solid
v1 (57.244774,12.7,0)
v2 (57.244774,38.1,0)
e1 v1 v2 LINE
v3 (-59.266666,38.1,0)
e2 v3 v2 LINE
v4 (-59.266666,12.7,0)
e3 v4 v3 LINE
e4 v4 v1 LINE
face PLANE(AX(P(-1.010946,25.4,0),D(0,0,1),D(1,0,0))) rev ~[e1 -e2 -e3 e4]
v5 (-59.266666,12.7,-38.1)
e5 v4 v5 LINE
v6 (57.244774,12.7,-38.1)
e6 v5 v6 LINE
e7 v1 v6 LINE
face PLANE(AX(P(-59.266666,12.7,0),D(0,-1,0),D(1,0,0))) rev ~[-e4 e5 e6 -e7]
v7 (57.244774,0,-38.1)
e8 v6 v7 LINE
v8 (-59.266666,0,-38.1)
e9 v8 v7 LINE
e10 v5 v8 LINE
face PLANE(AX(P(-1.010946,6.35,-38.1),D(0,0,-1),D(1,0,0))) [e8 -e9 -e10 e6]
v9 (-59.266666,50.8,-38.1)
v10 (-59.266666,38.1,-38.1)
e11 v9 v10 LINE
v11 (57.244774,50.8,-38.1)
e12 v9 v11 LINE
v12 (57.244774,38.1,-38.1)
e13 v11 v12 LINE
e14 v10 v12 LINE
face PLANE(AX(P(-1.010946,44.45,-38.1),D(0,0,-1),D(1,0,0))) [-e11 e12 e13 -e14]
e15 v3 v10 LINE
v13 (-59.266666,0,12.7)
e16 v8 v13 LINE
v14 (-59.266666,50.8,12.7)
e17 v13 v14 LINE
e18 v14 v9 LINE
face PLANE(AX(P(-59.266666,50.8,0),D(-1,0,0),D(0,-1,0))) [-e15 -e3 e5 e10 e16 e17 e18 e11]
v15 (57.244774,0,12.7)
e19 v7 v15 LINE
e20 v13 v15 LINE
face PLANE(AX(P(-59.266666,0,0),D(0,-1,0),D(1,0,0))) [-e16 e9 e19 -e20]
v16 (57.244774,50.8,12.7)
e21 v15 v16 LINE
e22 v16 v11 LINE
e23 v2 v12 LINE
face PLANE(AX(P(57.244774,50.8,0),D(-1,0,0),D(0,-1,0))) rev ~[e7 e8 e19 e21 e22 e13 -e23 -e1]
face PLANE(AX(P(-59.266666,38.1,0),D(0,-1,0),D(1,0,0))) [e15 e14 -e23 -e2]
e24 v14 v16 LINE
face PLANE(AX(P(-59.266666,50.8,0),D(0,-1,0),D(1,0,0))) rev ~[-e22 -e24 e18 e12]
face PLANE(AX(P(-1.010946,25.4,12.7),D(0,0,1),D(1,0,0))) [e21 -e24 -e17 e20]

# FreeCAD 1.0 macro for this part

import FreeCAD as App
import Part
import Sketcher
Q = App.Units.Quantity


def add_polygon(sketch, points):
    """Adds a closed chain of lines whose ends are joined by coincident constraints."""
    first, n = sketch.GeometryCount, len(points)
    for a, b in zip(points, points[1:] + points[:1]):
        sketch.addGeometry(Part.LineSegment(App.Vector(*a, 0), App.Vector(*b, 0)), False)
    for i in range(n):
        sketch.addConstraint(Sketcher.Constraint("Coincident", first + i, 2, first + (i + 1) % n, 1))

doc = App.newDocument("Part")
body = doc.addObject("PartDesign::Body", "Body")

sketch1 = body.newObject("Sketcher::SketchObject", "Sketch")
sketch1.AttachmentSupport = (doc.getObject("XY_Plane"), [""])
sketch1.MapMode = "FlatFace"
add_polygon(sketch1, [(-59, 51), (-59, 0), (57, 0), (57, 51)])
sketch1.addConstraint([
    Sketcher.Constraint("Vertical", 0),
    Sketcher.Constraint("Horizontal", 1),
    Sketcher.Constraint("Vertical", 2),
    Sketcher.Constraint("Horizontal", 3),
    Sketcher.Constraint("PointOnObject", 0, 2, -1),
    Sketcher.Constraint("DistanceY", 0, 2, 0, 1, Q("2 in")),
    Sketcher.Constraint("DistanceX", 1, 1, 1, 2, Q("116.511441 mm")),
    Sketcher.Constraint("DistanceX", 0, 2, -1, 1, Q("59.266666 mm")),
])
pad1 = body.newObject("PartDesign::Pad", "Pad")
pad1.Profile = sketch1
pad1.Length = Q("0.5 in")

sketch2 = body.newObject("Sketcher::SketchObject", "Sketch001")
sketch2.AttachmentSupport = (doc.getObject("XY_Plane"), [""])
sketch2.MapMode = "FlatFace"
add_polygon(sketch2, [(-59, 0), (-59, 13), (57, 13), (57, 0)])
sketch2.addConstraint([
    Sketcher.Constraint("Vertical", 0),
    Sketcher.Constraint("Horizontal", 1),
    Sketcher.Constraint("Vertical", 2),
    Sketcher.Constraint("Horizontal", 3),
    Sketcher.Constraint("PointOnObject", 2, 2, -1),
    Sketcher.Constraint("DistanceY", 0, 1, 0, 2, Q("0.5 in")),
    Sketcher.Constraint("DistanceX", 1, 1, 1, 2, Q("116.511441 mm")),
    Sketcher.Constraint("DistanceX", 0, 2, -1, 1, Q("59.266666 mm")),
])
pad2 = body.newObject("PartDesign::Pad", "Pad001")
pad2.Profile = sketch2
pad2.Length = Q("1.5 in")
pad2.Reversed = True

sketch3 = body.newObject("Sketcher::SketchObject", "Sketch002")
sketch3.AttachmentSupport = (doc.getObject("XY_Plane"), [""])
sketch3.MapMode = "FlatFace"
add_polygon(sketch3, [(-59, 38), (-59, 51), (57, 51), (57, 38)])
sketch3.addConstraint([
    Sketcher.Constraint("Vertical", 0),
    Sketcher.Constraint("Horizontal", 1),
    Sketcher.Constraint("Vertical", 2),
    Sketcher.Constraint("Horizontal", 3),
    Sketcher.Constraint("DistanceY", 0, 1, 0, 2, Q("0.5 in")),
    Sketcher.Constraint("DistanceY", -1, 1, 0, 2, Q("2 in")),
    Sketcher.Constraint("DistanceX", 1, 1, 1, 2, Q("116.511441 mm")),
    Sketcher.Constraint("DistanceX", 0, 2, -1, 1, Q("59.266666 mm")),
])
pad3 = body.newObject("PartDesign::Pad", "Pad002")
pad3.Profile = sketch3
pad3.Length = Q("1.5 in")
pad3.Reversed = True

doc.recompute()
